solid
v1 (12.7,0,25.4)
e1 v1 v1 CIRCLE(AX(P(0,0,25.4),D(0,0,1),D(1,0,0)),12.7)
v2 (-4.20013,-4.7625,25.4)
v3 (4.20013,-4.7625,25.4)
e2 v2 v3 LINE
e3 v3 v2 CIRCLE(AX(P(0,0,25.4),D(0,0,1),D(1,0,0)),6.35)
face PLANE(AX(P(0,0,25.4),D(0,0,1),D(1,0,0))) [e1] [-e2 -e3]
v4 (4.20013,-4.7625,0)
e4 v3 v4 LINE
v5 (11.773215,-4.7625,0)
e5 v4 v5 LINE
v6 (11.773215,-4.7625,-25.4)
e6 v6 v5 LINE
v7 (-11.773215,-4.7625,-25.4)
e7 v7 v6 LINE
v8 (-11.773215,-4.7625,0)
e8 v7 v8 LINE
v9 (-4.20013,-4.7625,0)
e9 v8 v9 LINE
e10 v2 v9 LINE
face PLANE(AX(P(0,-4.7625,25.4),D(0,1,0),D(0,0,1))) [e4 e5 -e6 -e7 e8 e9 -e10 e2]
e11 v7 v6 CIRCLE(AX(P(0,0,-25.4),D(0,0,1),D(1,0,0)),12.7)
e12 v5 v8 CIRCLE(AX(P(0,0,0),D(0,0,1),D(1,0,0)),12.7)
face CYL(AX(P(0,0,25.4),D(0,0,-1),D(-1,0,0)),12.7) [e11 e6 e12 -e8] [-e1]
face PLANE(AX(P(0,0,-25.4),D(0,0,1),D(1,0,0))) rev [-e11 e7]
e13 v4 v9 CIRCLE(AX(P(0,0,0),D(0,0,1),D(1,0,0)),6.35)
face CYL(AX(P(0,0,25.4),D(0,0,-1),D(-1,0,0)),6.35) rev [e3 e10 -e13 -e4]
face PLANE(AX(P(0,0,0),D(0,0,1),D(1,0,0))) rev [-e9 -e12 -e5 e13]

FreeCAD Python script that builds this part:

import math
import FreeCAD as App
import Part
import Sketcher
Q = App.Units.Quantity

doc = App.newDocument("Part")
body = doc.addObject("PartDesign::Body", "Body")

# Sketch on XY plane
sketch1 = doc.addObject("Sketcher::SketchObject", "Sketch")
body.addObject(sketch1)
sketch1.AttachmentSupport = (doc.XY_Plane, [""])
sketch1.MapMode = "FlatFace"
sketch1.addGeometry(Part.ArcOfCircle(Part.Circle(App.Vector(0, 0, 0), App.Vector(0, 0, 1), 12.7), math.radians(-157.975687), math.radians(-22.024313)), False)
sketch1.addGeometry(Part.ArcOfCircle(Part.Circle(App.Vector(0, 0, 0), App.Vector(0, 0, 1), 12.7), math.radians(-22.024313), math.radians(0)), False)
sketch1.addGeometry(Part.ArcOfCircle(Part.Circle(App.Vector(0, 0, 0), App.Vector(0, 0, 1), 12.7), math.radians(0), math.radians(202.024313)), False)
sketch1.addGeometry(Part.LineSegment(App.Vector(4.20013, -4.7625, 0), App.Vector(-4.20013, -4.7625, 0)), False)
sketch1.addGeometry(Part.ArcOfCircle(Part.Circle(App.Vector(0, 0, 0), App.Vector(0, 0, 1), 6.35), math.radians(-48.590378), math.radians(228.590378)), False)
sketch1.addConstraint(Sketcher.Constraint("Tangent", 0, 2, 1, 1))
sketch1.addConstraint(Sketcher.Constraint("Tangent", 1, 2, 2, 1))
sketch1.addConstraint(Sketcher.Constraint("Tangent", 2, 2, 0, 1))
sketch1.addConstraint(Sketcher.Constraint("Coincident", 3, 1, 4, 1))
sketch1.addConstraint(Sketcher.Constraint("Coincident", 4, 2, 3, 2))
sketch1.addConstraint(Sketcher.Constraint("Horizontal", 3))
sketch1.addConstraint(Sketcher.Constraint("Coincident", 0, 3, -1, 1))
sketch1.addConstraint(Sketcher.Constraint("Coincident", 4, 3, -1, 1))
sketch1.addConstraint(Sketcher.Constraint("PointOnObject", 1, 2, -1))
sketch1.addConstraint(Sketcher.Constraint("Horizontal", 0, 2, 2, 2))
sketch1.addConstraint(Sketcher.Constraint("Horizontal", 2, 2, 3, 1))
sketch1.addConstraint(Sketcher.Constraint("Radius", 0, Q("0.5 in")))
sketch1.addConstraint(Sketcher.Constraint("Radius", 4, Q("0.25 in")))
sketch1.addConstraint(Sketcher.Constraint("DistanceY", 0, 2, -1, 1, Q("0.1875 in")))
pad1 = doc.addObject("PartDesign::Pad", "Pad")
body.addObject(pad1)
pad1.Profile = sketch1
pad1.Length = Q("1 in")

# Sketch on XY plane
sketch2 = doc.addObject("Sketcher::SketchObject", "Sketch001")
body.addObject(sketch2)
sketch2.AttachmentSupport = (doc.XY_Plane, [""])
sketch2.MapMode = "FlatFace"
sketch2.AttachmentOffset = App.Placement(App.Vector(0, 0, -1 * 25.4), App.Rotation())
sketch2.addGeometry(Part.ArcOfCircle(Part.Circle(App.Vector(0, 0, 0), App.Vector(0, 0, 1), 12.7), math.radians(-157.975687), math.radians(-22.024313)), False)
sketch2.addGeometry(Part.LineSegment(App.Vector(11.773215, -4.7625, 0), App.Vector(-11.773215, -4.7625, 0)), False)
sketch2.addConstraint(Sketcher.Constraint("Coincident", 0, 1, 1, 2))
sketch2.addConstraint(Sketcher.Constraint("Coincident", 1, 1, 0, 2))
sketch2.addConstraint(Sketcher.Constraint("Horizontal", 1))
sketch2.addConstraint(Sketcher.Constraint("Coincident", 0, 3, -1, 1))
sketch2.addConstraint(Sketcher.Constraint("Radius", 0, Q("0.5 in")))
sketch2.addConstraint(Sketcher.Constraint("DistanceY", 0, 1, -1, 1, Q("0.1875 in")))
pad2 = doc.addObject("PartDesign::Pad", "Pad001")
body.addObject(pad2)
pad2.Profile = sketch2
pad2.Length = Q("1 in")

doc.recompute()
